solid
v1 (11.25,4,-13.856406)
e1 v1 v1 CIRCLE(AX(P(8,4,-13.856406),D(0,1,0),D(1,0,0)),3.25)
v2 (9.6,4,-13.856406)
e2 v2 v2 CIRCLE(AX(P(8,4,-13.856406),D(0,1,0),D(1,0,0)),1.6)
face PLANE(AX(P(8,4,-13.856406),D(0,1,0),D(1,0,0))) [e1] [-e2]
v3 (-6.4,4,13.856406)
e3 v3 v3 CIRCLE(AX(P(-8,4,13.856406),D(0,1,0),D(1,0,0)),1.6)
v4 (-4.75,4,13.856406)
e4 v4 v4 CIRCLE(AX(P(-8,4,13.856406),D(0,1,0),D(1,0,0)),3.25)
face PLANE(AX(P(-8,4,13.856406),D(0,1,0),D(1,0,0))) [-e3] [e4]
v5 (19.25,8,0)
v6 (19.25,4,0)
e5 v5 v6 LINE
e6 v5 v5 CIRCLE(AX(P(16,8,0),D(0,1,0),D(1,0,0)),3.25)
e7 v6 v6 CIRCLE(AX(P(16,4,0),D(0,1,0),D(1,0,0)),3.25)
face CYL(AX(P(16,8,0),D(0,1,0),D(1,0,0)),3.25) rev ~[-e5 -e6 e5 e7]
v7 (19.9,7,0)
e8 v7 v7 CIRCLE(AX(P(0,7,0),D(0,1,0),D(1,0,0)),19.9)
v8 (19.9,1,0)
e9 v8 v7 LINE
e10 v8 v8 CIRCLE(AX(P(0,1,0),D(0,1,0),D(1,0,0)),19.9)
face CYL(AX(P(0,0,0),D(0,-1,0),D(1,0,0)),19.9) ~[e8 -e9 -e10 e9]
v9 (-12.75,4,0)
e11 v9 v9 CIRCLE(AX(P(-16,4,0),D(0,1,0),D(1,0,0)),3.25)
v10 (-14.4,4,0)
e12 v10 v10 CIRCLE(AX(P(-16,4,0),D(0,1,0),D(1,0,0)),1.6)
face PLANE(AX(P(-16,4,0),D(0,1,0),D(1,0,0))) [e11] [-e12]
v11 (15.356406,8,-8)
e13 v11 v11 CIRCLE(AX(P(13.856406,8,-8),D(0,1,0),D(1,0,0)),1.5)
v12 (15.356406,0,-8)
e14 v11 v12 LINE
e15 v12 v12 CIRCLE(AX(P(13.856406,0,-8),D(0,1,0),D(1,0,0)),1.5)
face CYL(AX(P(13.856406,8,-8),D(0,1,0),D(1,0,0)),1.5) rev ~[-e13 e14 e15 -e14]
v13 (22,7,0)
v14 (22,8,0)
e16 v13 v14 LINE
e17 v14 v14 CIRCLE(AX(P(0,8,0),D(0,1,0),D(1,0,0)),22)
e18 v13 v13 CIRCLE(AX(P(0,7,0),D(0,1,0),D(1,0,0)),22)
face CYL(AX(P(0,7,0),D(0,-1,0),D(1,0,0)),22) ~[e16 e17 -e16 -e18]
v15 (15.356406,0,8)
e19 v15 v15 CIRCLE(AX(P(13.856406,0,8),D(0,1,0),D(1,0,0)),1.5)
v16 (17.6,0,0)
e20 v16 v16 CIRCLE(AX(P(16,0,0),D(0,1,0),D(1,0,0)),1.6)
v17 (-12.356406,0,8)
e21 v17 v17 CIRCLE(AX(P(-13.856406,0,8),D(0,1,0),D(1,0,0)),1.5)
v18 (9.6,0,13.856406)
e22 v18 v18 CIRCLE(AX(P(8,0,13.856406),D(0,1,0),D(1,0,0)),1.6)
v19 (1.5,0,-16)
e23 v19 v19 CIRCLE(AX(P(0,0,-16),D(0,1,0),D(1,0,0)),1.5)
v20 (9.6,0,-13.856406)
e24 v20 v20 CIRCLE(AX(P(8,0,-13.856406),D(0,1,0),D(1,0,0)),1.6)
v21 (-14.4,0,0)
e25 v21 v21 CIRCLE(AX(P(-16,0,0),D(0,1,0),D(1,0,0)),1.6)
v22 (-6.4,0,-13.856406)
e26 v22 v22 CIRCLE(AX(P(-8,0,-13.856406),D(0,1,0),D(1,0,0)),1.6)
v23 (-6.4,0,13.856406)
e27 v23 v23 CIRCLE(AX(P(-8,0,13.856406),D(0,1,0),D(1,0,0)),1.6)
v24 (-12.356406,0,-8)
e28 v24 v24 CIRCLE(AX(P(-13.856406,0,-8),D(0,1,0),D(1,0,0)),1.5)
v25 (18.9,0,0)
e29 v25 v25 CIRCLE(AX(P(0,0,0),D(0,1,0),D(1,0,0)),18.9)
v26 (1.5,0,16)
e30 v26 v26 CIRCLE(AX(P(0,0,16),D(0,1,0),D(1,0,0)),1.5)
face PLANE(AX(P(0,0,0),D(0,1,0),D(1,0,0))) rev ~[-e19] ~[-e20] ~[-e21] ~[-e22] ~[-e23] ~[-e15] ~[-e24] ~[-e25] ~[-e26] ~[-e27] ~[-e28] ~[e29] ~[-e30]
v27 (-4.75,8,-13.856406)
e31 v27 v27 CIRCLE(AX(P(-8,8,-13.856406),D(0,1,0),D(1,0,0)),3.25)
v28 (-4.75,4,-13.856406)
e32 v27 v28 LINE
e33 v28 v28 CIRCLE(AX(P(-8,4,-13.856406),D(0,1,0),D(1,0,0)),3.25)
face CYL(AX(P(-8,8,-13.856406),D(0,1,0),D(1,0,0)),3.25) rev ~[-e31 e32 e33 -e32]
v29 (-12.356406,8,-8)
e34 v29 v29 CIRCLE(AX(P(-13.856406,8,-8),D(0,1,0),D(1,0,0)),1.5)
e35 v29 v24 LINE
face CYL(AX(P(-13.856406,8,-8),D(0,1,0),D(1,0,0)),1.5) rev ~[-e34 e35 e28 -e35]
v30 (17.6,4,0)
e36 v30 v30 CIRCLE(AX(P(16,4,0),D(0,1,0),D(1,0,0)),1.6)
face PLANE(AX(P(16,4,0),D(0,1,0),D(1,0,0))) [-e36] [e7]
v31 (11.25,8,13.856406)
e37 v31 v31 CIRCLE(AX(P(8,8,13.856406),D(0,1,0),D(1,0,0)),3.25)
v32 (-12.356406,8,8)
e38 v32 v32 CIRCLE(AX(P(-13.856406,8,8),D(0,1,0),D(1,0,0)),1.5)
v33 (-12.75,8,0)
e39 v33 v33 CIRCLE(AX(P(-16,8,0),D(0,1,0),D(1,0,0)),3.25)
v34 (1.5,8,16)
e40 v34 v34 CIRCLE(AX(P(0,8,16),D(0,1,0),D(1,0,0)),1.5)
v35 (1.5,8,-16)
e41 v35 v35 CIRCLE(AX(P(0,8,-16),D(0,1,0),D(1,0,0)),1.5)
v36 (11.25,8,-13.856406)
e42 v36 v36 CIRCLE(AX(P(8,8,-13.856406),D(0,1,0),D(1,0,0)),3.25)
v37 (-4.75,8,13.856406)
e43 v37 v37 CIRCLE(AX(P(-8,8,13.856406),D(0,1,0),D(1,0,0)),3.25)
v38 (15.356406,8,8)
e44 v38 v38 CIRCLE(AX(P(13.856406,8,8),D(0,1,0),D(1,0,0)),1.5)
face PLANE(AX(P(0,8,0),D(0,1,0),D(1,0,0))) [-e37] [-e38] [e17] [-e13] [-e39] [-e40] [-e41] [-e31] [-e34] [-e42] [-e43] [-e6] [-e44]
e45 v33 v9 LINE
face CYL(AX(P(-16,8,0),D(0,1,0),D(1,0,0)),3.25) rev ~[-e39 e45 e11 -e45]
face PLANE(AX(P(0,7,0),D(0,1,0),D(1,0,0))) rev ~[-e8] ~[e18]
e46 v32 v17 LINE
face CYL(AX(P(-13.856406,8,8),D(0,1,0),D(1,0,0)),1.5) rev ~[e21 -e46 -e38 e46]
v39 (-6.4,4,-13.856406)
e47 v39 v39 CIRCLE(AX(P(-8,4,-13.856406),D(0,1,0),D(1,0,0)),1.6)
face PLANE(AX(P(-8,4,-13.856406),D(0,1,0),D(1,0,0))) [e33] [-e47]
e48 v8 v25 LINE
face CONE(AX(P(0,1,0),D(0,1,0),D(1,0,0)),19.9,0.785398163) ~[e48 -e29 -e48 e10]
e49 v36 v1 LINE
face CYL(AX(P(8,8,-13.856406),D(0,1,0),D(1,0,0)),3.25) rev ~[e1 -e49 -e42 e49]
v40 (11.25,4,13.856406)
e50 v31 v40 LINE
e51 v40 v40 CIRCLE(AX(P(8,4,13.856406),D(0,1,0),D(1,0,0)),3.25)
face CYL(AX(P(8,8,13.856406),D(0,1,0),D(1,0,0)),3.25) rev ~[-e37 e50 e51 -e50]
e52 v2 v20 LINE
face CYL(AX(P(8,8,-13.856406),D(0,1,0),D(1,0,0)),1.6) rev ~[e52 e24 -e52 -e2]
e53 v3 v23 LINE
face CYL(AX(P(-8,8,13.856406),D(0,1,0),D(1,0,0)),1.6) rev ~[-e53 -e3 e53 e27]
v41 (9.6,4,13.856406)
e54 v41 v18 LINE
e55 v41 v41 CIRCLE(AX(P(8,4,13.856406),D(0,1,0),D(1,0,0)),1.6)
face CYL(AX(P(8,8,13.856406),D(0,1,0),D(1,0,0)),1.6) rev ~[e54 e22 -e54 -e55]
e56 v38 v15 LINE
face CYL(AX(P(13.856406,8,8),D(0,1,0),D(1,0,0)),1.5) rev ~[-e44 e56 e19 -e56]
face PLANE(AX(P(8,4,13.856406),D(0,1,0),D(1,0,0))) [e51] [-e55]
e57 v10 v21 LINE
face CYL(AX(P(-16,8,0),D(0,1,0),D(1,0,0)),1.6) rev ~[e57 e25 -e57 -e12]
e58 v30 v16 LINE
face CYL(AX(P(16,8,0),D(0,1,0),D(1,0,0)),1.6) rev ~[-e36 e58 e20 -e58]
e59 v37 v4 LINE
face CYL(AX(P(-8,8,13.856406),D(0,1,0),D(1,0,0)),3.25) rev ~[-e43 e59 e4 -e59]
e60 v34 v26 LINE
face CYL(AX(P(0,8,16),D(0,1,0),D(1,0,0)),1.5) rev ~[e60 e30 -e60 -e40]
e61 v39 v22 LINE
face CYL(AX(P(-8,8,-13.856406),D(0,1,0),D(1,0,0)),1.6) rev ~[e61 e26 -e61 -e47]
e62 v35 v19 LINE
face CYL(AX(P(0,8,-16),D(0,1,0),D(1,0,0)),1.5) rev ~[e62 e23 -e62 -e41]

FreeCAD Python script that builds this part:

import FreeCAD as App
import Part
import Sketcher

V = App.Vector
Q = App.Units.Quantity


def edges_at(feature, points):
    """Names of the edges that pass closest to the given points."""
    edges = feature.Shape.Edges
    near = lambda p: min(range(len(edges)), key=lambda i: edges[i].distToShape(Part.Vertex(*p))[0])
    return sorted({f"Edge{near(p) + 1}" for p in points})

doc = App.newDocument("Part")
body = doc.addObject("PartDesign::Body", "Body")

# Sketch on XZ plane
sketch1 = doc.addObject("Sketcher::SketchObject", "Sketch")
body.addObject(sketch1)
sketch1.AttachmentSupport = (doc.XZ_Plane, [""])
sketch1.MapMode = "FlatFace"
sketch1.addGeometry(Part.Circle(V(0, 0, 0), V(0, 0, 1), 20), False)
sketch1.addConstraint([
    Sketcher.Constraint("Coincident", 0, 3, -1, 1),
    Sketcher.Constraint("Diameter", 0, Q("39.8 mm")),
])
pad1 = doc.addObject("PartDesign::Pad", "Pad")
body.addObject(pad1)
pad1.Profile = sketch1
pad1.Length = 7
pad1.Reversed = True

# Sketch on XZ plane
sketch2 = doc.addObject("Sketcher::SketchObject", "Sketch001")
body.addObject(sketch2)
sketch2.AttachmentSupport = (doc.XZ_Plane, [""])
sketch2.MapMode = "FlatFace"
sketch2.AttachmentOffset = App.Placement(V(0, 0, -7), App.Rotation())
sketch2.addGeometry(Part.Circle(V(0, 0, 0), V(0, 0, 1), 22), False)
sketch2.addConstraint([
    Sketcher.Constraint("Coincident", 0, 3, -1, 1),
    Sketcher.Constraint("Diameter", 0, Q("44 mm")),
])
pad2 = doc.addObject("PartDesign::Pad", "Pad001")
body.addObject(pad2)
pad2.Profile = sketch2
pad2.Length = 1
pad2.Reversed = True

# Sketch on XZ plane
sketch3 = doc.addObject("Sketcher::SketchObject", "Sketch002")
body.addObject(sketch3)
sketch3.AttachmentSupport = (doc.XZ_Plane, [""])
sketch3.MapMode = "FlatFace"
sketch3.AttachmentOffset = App.Placement(V(0, 0, -8), App.Rotation())
sketch3.addGeometry([
    Part.Circle(V(0, -16, 0), V(0, 0, 1), 1.5),  # 0
    Part.Circle(V(13.9, -8, 0), V(0, 0, 1), 1.5),  # 1
    Part.Circle(V(13.9, 8, 0), V(0, 0, 1), 1.5),  # 2
    Part.Circle(V(0, 16, 0), V(0, 0, 1), 1.5),  # 3
    Part.Circle(V(-13.9, 8, 0), V(0, 0, 1), 1.5),  # 4
    Part.Circle(V(-13.9, -8, 0), V(0, 0, 1), 1.5),  # 5
    Part.Circle(V(-8, -13.9, 0), V(0, 0, 1), 1.6),  # 6
    Part.Circle(V(-16, 0, 0), V(0, 0, 1), 1.6),  # 7
    Part.Circle(V(-8, 13.9, 0), V(0, 0, 1), 1.6),  # 8
    Part.Circle(V(8, 13.9, 0), V(0, 0, 1), 1.6),  # 9
    Part.Circle(V(16, 0, 0), V(0, 0, 1), 1.6),  # 10
    Part.Circle(V(8, -13.9, 0), V(0, 0, 1), 1.6),  # 11
], False)
sketch3.addConstraint([
    Sketcher.Constraint("Equal", 0, 1),
    Sketcher.Constraint("Equal", 1, 2),
    Sketcher.Constraint("Equal", 2, 3),
    Sketcher.Constraint("Equal", 3, 4),
    Sketcher.Constraint("Equal", 4, 5),
    Sketcher.Constraint("Equal", 6, 7),
    Sketcher.Constraint("Equal", 7, 8),
    Sketcher.Constraint("Equal", 8, 9),
    Sketcher.Constraint("Equal", 9, 10),
    Sketcher.Constraint("Equal", 10, 11),
    Sketcher.Constraint("Symmetric", 0, 3, 3, 3, -1, 1),
    Sketcher.Constraint("Symmetric", 1, 3, 4, 3, -1, 1),
    Sketcher.Constraint("Symmetric", 2, 3, 5, 3, -1, 1),
    Sketcher.Constraint("Symmetric", 6, 3, 9, 3, -1, 1),
    Sketcher.Constraint("Symmetric", 7, 3, 10, 3, -1, 1),
    Sketcher.Constraint("Symmetric", 8, 3, 11, 3, -1, 1),
    Sketcher.Constraint("Symmetric", 2, 3, 4, 3, -2),
    Sketcher.Constraint("Symmetric", 8, 3, 9, 3, -2),
    Sketcher.Constraint("PointOnObject", 0, 3, -2),
    Sketcher.Constraint("PointOnObject", 7, 3, -1),
    Sketcher.Constraint("Diameter", 0, Q("3 mm")),
    Sketcher.Constraint("Diameter", 6, Q("3.2 mm")),
    Sketcher.Constraint("DistanceY", 0, 3, -1, 1, Q("16 mm")),
    Sketcher.Constraint("DistanceY", 1, 3, -1, 1, Q("8 mm")),
    Sketcher.Constraint("DistanceX", 6, 3, -1, 1, Q("8 mm")),
    Sketcher.Constraint("DistanceX", 7, 3, -1, 1, Q("16 mm")),
    Sketcher.Constraint("DistanceX", -1, 1, 1, 3, Q("13.856406 mm")),
    Sketcher.Constraint("DistanceY", 6, 3, -1, 1, Q("13.856406 mm")),
])
pocket1 = doc.addObject("PartDesign::Pocket", "Pocket")
body.addObject(pocket1)
pocket1.Profile = sketch3
pocket1.Type = "ThroughAll"
pocket1.Reversed = True

# Sketch on XZ plane
sketch4 = doc.addObject("Sketcher::SketchObject", "Sketch003")
body.addObject(sketch4)
sketch4.AttachmentSupport = (doc.XZ_Plane, [""])
sketch4.MapMode = "FlatFace"
sketch4.AttachmentOffset = App.Placement(V(0, 0, -8), App.Rotation())
sketch4.addGeometry([
    Part.Circle(V(-8, -13.9, 0), V(0, 0, 1), 3.2),  # 0
    Part.Circle(V(8, -13.9, 0), V(0, 0, 1), 3.2),  # 1
    Part.Circle(V(16, 0, 0), V(0, 0, 1), 3.2),  # 2
    Part.Circle(V(8, 13.9, 0), V(0, 0, 1), 3.2),  # 3
    Part.Circle(V(-8, 13.9, 0), V(0, 0, 1), 3.2),  # 4
    Part.Circle(V(-16, 0, 0), V(0, 0, 1), 3.2),  # 5
], False)
sketch4.addConstraint([
    Sketcher.Constraint("Equal", 0, 1),
    Sketcher.Constraint("Equal", 1, 2),
    Sketcher.Constraint("Equal", 2, 3),
    Sketcher.Constraint("Equal", 3, 4),
    Sketcher.Constraint("Equal", 4, 5),
    Sketcher.Constraint("Symmetric", 0, 3, 3, 3, -1, 1),
    Sketcher.Constraint("Symmetric", 1, 3, 4, 3, -1, 1),
    Sketcher.Constraint("Symmetric", 2, 3, 5, 3, -1, 1),
    Sketcher.Constraint("Symmetric", 0, 3, 1, 3, -2),
    Sketcher.Constraint("PointOnObject", 2, 3, -1),
    Sketcher.Constraint("Diameter", 0, Q("6.5 mm")),
    Sketcher.Constraint("DistanceX", 0, 3, -1, 1, Q("8 mm")),
    Sketcher.Constraint("DistanceX", -1, 1, 2, 3, Q("16 mm")),
    Sketcher.Constraint("DistanceY", 0, 3, -1, 1, Q("13.856406 mm")),
])
pocket2 = doc.addObject("PartDesign::Pocket", "Pocket001")
body.addObject(pocket2)
pocket2.Profile = sketch4
pocket2.Length = 4
pocket2.Reversed = True
doc.recompute()

chamfer = doc.addObject("PartDesign::Chamfer", "Chamfer")
body.addObject(chamfer)
chamfer.Base = (pocket2, edges_at(pocket2, [(-19.9, 0, 0)]))
chamfer.Size = 1

doc.recompute()
